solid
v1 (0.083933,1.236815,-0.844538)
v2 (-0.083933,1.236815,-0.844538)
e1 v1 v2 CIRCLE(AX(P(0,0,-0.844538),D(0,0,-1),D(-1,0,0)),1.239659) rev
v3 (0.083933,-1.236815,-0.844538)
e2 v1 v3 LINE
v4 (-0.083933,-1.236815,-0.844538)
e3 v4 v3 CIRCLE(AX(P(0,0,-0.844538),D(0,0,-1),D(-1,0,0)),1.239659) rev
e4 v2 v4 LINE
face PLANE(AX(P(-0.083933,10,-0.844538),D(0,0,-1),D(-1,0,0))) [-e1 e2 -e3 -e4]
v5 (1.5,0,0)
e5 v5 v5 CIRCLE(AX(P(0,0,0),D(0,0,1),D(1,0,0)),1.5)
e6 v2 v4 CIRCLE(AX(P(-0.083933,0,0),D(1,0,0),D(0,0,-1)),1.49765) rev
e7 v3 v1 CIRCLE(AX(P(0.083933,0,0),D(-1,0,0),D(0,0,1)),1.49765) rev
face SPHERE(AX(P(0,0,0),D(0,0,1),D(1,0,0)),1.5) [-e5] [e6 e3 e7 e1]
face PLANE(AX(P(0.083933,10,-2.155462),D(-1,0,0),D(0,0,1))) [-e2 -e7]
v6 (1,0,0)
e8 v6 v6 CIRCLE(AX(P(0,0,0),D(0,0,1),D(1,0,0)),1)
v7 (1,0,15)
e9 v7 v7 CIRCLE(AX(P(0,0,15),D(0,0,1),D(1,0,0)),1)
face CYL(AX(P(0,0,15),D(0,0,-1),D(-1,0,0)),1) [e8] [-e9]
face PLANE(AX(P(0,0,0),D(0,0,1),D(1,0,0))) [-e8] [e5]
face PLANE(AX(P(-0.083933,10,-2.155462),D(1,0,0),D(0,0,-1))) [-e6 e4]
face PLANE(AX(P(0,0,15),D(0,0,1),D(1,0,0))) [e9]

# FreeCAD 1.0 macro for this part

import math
import FreeCAD as App
import Part
import Sketcher
from FreeCAD import Vector
Q = App.Units.Quantity

doc = App.newDocument("Part")
body = doc.addObject("PartDesign::Body", "Body")

# Sketch on XY plane
sketch1 = body.newObject("Sketcher::SketchObject", "Sketch")
sketch1.AttachmentSupport = (doc.getObject("XY_Plane"), [""])
sketch1.MapMode = "FlatFace"
sketch1.addGeometry(Part.Circle(Vector(0, 0, 0), Vector(0, 0, 1), 1), False)
sketch1.addConstraint([
    Sketcher.Constraint("Coincident", 0, 3, -1, 1),
    Sketcher.Constraint("Diameter", 0, Q("2 mm")),
])
pad1 = body.newObject("PartDesign::Pad", "Pad")
pad1.Profile = sketch1
pad1.Length = 15

# Sketch on XZ plane
sketch2 = body.newObject("Sketcher::SketchObject", "Sketch001")
sketch2.AttachmentSupport = (doc.getObject("XZ_Plane"), [""])
sketch2.MapMode = "FlatFace"
sketch2.addGeometry([
    Part.LineSegment(Vector(0, -1.5, 0), Vector(0, 0, 0)),
    Part.LineSegment(Vector(0, 0, 0), Vector(1.5, 0, 0)),
    Part.ArcOfCircle(Part.Circle(Vector(0, 0, 0), Vector(0, 0, 1), 1.5), math.radians(-90), math.radians(0)),
], False)
sketch2.addConstraint([
    Sketcher.Constraint("Coincident", 0, 2, 1, 1),
    Sketcher.Constraint("Coincident", 1, 2, 2, 2),
    Sketcher.Constraint("Coincident", 2, 1, 0, 1),
    Sketcher.Constraint("Vertical", 0),
    Sketcher.Constraint("Horizontal", 1),
    Sketcher.Constraint("Coincident", 2, 3, -1, 1),
    Sketcher.Constraint("Coincident", 0, 2, -1, 1),
    Sketcher.Constraint("Radius", 2, Q("1.5 mm")),
])
revolution = body.newObject("PartDesign::Revolution", "Revolution")
revolution.Profile = sketch2
revolution.ReferenceAxis = (sketch2, ["V_Axis"])
revolution.Angle = 360

# Sketch on XZ plane
sketch3 = body.newObject("Sketcher::SketchObject", "Sketch002")
sketch3.AttachmentSupport = (doc.getObject("XZ_Plane"), [""])
sketch3.MapMode = "FlatFace"
sketch3.addGeometry([
    Part.LineSegment(Vector(-0.08, -2.16, 0), Vector(-0.08, -0.84, 0)),
    Part.LineSegment(Vector(-0.08, -0.84, 0), Vector(0.08, -0.84, 0)),
    Part.LineSegment(Vector(0.08, -0.84, 0), Vector(0.08, -2.16, 0)),
    Part.LineSegment(Vector(0.08, -2.16, 0), Vector(-0.08, -2.16, 0)),
], False)
sketch3.addConstraint([
    Sketcher.Constraint("Coincident", 0, 2, 1, 1),
    Sketcher.Constraint("Coincident", 1, 2, 2, 1),
    Sketcher.Constraint("Coincident", 2, 2, 3, 1),
    Sketcher.Constraint("Coincident", 3, 2, 0, 1),
    Sketcher.Constraint("Vertical", 0),
    Sketcher.Constraint("Horizontal", 1),
    Sketcher.Constraint("Vertical", 2),
    Sketcher.Constraint("Horizontal", 3),
    Sketcher.Constraint("DistanceX", 1, 1, 1, 2, Q("0.167866 mm")),
    Sketcher.Constraint("DistanceY", 0, 1, 0, 2, Q("1.310924 mm")),
    Sketcher.Constraint("DistanceY", 0, 2, -1, 1, Q("0.844538 mm")),
    Sketcher.Constraint("DistanceX", 0, 2, -1, 1, Q("0.083933 mm")),
])
pocket1 = body.newObject("PartDesign::Pocket", "Pocket")
pocket1.Profile = sketch3
pocket1.Type = "ThroughAll"
pocket1.Midplane = True

doc.recompute()
